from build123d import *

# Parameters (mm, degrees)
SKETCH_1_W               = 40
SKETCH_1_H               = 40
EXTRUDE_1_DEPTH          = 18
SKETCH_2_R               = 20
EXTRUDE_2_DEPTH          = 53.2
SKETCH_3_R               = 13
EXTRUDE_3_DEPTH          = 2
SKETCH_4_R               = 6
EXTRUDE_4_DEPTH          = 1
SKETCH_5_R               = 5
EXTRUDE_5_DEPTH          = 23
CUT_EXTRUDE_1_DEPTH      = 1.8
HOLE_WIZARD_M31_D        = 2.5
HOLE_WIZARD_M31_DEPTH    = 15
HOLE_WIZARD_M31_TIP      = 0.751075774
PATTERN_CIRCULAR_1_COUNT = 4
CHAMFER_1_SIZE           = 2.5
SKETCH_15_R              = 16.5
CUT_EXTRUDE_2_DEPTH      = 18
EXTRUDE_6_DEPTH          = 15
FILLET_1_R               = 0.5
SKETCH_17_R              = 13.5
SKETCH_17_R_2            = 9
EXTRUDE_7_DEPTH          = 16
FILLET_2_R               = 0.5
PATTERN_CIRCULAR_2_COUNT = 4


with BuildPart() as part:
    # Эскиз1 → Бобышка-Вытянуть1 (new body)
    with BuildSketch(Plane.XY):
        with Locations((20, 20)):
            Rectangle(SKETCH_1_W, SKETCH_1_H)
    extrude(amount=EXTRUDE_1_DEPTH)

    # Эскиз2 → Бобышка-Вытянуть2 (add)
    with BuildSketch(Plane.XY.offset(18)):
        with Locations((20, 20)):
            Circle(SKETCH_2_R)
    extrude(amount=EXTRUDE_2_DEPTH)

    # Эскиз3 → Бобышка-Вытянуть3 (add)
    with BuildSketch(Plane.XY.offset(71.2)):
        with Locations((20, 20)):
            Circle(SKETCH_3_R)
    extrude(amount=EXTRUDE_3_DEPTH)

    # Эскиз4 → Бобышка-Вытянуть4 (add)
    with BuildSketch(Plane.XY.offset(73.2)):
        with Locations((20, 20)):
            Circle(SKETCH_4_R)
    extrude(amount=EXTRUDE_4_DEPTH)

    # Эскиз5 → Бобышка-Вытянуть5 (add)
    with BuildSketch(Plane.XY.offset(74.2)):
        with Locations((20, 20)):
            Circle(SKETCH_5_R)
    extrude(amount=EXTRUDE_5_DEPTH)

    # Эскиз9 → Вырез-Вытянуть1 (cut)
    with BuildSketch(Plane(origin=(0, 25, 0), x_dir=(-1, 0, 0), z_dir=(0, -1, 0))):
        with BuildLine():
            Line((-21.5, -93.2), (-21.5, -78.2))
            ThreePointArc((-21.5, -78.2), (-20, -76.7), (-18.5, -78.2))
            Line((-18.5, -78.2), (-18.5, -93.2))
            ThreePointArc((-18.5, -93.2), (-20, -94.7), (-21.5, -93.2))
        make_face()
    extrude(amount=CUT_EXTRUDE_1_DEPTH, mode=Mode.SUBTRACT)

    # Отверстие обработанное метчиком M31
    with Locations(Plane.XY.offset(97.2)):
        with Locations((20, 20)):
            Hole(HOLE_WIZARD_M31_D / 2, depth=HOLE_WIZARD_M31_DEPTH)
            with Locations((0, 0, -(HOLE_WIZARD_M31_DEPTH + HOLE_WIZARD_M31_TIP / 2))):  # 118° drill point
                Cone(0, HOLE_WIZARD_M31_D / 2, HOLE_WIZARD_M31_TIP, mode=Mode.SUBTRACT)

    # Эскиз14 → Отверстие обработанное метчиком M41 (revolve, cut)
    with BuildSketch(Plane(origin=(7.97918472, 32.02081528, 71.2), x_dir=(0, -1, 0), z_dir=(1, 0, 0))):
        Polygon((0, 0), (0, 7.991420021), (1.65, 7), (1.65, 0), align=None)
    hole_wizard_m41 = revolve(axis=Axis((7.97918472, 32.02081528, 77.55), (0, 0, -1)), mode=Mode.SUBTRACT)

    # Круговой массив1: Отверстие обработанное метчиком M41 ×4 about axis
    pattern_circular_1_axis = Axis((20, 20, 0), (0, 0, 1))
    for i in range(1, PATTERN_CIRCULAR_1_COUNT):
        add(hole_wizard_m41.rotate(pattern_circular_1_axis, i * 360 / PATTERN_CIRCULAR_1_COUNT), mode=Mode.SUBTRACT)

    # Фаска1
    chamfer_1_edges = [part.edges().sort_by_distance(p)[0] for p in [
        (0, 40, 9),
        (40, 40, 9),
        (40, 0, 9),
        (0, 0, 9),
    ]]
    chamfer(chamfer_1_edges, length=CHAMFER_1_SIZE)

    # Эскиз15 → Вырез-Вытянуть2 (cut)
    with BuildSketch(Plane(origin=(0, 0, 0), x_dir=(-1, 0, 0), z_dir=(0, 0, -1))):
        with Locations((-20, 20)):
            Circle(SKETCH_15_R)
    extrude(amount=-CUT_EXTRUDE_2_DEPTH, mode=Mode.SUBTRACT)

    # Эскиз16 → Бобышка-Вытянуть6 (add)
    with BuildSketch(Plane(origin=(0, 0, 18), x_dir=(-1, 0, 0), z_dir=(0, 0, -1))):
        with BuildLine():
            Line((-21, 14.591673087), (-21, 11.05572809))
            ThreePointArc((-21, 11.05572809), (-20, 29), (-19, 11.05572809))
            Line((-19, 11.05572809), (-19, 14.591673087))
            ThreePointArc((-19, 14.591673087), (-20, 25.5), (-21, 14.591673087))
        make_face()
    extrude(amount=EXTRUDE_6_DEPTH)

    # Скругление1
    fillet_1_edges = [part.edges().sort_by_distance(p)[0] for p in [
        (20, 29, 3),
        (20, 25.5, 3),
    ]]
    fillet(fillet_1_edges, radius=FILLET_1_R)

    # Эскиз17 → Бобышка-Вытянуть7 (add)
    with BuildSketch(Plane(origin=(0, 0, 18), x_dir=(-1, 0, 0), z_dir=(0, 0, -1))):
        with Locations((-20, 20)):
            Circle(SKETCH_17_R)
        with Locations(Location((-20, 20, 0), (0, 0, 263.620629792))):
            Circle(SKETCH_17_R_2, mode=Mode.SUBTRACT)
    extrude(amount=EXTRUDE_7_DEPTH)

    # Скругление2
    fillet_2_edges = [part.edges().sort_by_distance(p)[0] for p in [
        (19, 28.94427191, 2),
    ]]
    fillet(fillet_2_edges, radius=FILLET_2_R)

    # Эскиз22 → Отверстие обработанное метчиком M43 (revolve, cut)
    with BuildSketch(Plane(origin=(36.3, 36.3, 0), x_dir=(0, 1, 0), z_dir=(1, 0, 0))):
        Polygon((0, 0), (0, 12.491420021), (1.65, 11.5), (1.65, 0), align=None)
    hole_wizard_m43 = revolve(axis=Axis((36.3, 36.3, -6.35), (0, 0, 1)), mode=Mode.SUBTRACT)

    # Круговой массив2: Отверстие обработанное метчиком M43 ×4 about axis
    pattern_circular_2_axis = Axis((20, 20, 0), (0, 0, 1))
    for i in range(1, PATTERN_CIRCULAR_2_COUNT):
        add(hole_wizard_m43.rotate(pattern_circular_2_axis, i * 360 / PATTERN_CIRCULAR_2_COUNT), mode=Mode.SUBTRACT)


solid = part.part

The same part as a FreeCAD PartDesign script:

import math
import FreeCAD as App
import Part
import Sketcher
from FreeCAD import Vector
Q = App.Units.Quantity


def edges_at(feature, points):
    """Names of the edges that pass closest to the given points."""
    edges = feature.Shape.Edges
    near = lambda p: min(range(len(edges)), key=lambda i: edges[i].distToShape(Part.Vertex(*p))[0])
    return sorted({f"Edge{near(p) + 1}" for p in points})


def add_polygon(sketch, points):
    """Adds a closed chain of lines whose ends are joined by coincident constraints."""
    first, n = sketch.GeometryCount, len(points)
    for a, b in zip(points, points[1:] + points[:1]):
        sketch.addGeometry(Part.LineSegment(App.Vector(*a, 0), App.Vector(*b, 0)), False)
    for i in range(n):
        sketch.addConstraint(Sketcher.Constraint("Coincident", first + i, 2, first + (i + 1) % n, 1))

doc = App.newDocument("Part")
body = doc.addObject("PartDesign::Body", "Body")

sketch1 = body.newObject("Sketcher::SketchObject", "Sketch")
sketch1.AttachmentSupport = (doc.getObject("XY_Plane"), [""])
sketch1.MapMode = "FlatFace"
add_polygon(sketch1, [(0, 40), (0, 0), (40, 0), (40, 40)])
sketch1.addConstraint(Sketcher.Constraint("Vertical", 0))
sketch1.addConstraint(Sketcher.Constraint("Horizontal", 1))
sketch1.addConstraint(Sketcher.Constraint("Vertical", 2))
sketch1.addConstraint(Sketcher.Constraint("Horizontal", 3))
sketch1.addConstraint(Sketcher.Constraint("Coincident", 0, 2, -1, 1))
sketch1.addConstraint(Sketcher.Constraint("Equal", 3, 0))
sketch1.addConstraint(Sketcher.Constraint("DistanceX", 1, 1, 1, 2, Q("40 mm")))
pad1 = body.newObject("PartDesign::Pad", "Pad")
pad1.Profile = sketch1
pad1.Length = 18

sketch2 = body.newObject("Sketcher::SketchObject", "Sketch001")
sketch2.AttachmentSupport = (doc.getObject("XY_Plane"), [""])
sketch2.MapMode = "FlatFace"
sketch2.AttachmentOffset = App.Placement(Vector(0, 0, 18), App.Rotation())
sketch2.addGeometry(Part.Circle(Vector(20, 20, 0), Vector(0, 0, 1), 20), False)
sketch2.addConstraint(Sketcher.Constraint("Diameter", 0, Q("40 mm")))
sketch2.addConstraint(Sketcher.Constraint("DistanceX", -1, 1, 0, 3, Q("20 mm")))
sketch2.addConstraint(Sketcher.Constraint("DistanceY", -1, 1, 0, 3, Q("20 mm")))
pad2 = body.newObject("PartDesign::Pad", "Pad001")
pad2.Profile = sketch2
pad2.Length = 53.2

sketch3 = body.newObject("Sketcher::SketchObject", "Sketch002")
sketch3.AttachmentSupport = (doc.getObject("XY_Plane"), [""])
sketch3.MapMode = "FlatFace"
sketch3.AttachmentOffset = App.Placement(Vector(0, 0, 71.2), App.Rotation())
sketch3.addGeometry(Part.Circle(Vector(20, 20, 0), Vector(0, 0, 1), 13), False)
sketch3.addConstraint(Sketcher.Constraint("Diameter", 0, Q("26 mm")))
sketch3.addConstraint(Sketcher.Constraint("DistanceX", -1, 1, 0, 3, Q("20 mm")))
sketch3.addConstraint(Sketcher.Constraint("DistanceY", -1, 1, 0, 3, Q("20 mm")))
pad3 = body.newObject("PartDesign::Pad", "Pad002")
pad3.Profile = sketch3
pad3.Length = 2

sketch4 = body.newObject("Sketcher::SketchObject", "Sketch003")
sketch4.AttachmentSupport = (doc.getObject("XY_Plane"), [""])
sketch4.MapMode = "FlatFace"
sketch4.AttachmentOffset = App.Placement(Vector(0, 0, 73.2), App.Rotation())
sketch4.addGeometry(Part.Circle(Vector(20, 20, 0), Vector(0, 0, 1), 6), False)
sketch4.addConstraint(Sketcher.Constraint("Diameter", 0, Q("12 mm")))
sketch4.addConstraint(Sketcher.Constraint("DistanceX", -1, 1, 0, 3, Q("20 mm")))
sketch4.addConstraint(Sketcher.Constraint("DistanceY", -1, 1, 0, 3, Q("20 mm")))
pad4 = body.newObject("PartDesign::Pad", "Pad003")
pad4.Profile = sketch4
pad4.Length = 1

sketch5 = body.newObject("Sketcher::SketchObject", "Sketch004")
sketch5.AttachmentSupport = (doc.getObject("XY_Plane"), [""])
sketch5.MapMode = "FlatFace"
sketch5.AttachmentOffset = App.Placement(Vector(0, 0, 74.2), App.Rotation())
sketch5.addGeometry(Part.Circle(Vector(20, 20, 0), Vector(0, 0, 1), 5), False)
sketch5.addConstraint(Sketcher.Constraint("Diameter", 0, Q("10 mm")))
sketch5.addConstraint(Sketcher.Constraint("DistanceX", -1, 1, 0, 3, Q("20 mm")))
sketch5.addConstraint(Sketcher.Constraint("DistanceY", -1, 1, 0, 3, Q("20 mm")))
pad5 = body.newObject("PartDesign::Pad", "Pad004")
pad5.Profile = sketch5
pad5.Length = 23

sketch6 = body.newObject("Sketcher::SketchObject", "Sketch005")
sketch6.AttachmentSupport = (doc.getObject("XZ_Plane"), [""])
sketch6.MapMode = "FlatFace"
sketch6.AttachmentOffset = App.Placement(Vector(0, 0, -25), App.Rotation())
sketch6.addGeometry(Part.LineSegment(Vector(21.5, 78.2, 0), Vector(21.5, 93.2, 0)), False)
sketch6.addGeometry(Part.ArcOfCircle(Part.Circle(Vector(20, 93.2, 0), Vector(0, 0, 1), 1.5), math.radians(0), math.radians(180)), False)
sketch6.addGeometry(Part.LineSegment(Vector(18.5, 93.2, 0), Vector(18.5, 78.2, 0)), False)
sketch6.addGeometry(Part.ArcOfCircle(Part.Circle(Vector(20, 78.2, 0), Vector(0, 0, 1), 1.5), math.radians(180), math.radians(360)), False)
sketch6.addConstraint(Sketcher.Constraint("Tangent", 0, 2, 1, 1))
sketch6.addConstraint(Sketcher.Constraint("Tangent", 1, 2, 2, 1))
sketch6.addConstraint(Sketcher.Constraint("Tangent", 2, 2, 3, 1))
sketch6.addConstraint(Sketcher.Constraint("Tangent", 3, 2, 0, 1))
sketch6.addConstraint(Sketcher.Constraint("Vertical", 0))
sketch6.addConstraint(Sketcher.Constraint("Vertical", 2))
sketch6.addConstraint(Sketcher.Constraint("Radius", 1, Q("1.5 mm")))
sketch6.addConstraint(Sketcher.Constraint("DistanceY", 0, 1, 0, 2, Q("15 mm")))
sketch6.addConstraint(Sketcher.Constraint("DistanceX", -1, 1, 1, 3, Q("20 mm")))
sketch6.addConstraint(Sketcher.Constraint("DistanceY", -1, 1, 1, 3, Q("93.2 mm")))
pocket1 = body.newObject("PartDesign::Pocket", "Pocket")
pocket1.Profile = sketch6
pocket1.Length = 1.8
pocket1.Reversed = True

sketch7 = body.newObject("Sketcher::SketchObject", "Sketch006")
sketch7.AttachmentSupport = (doc.getObject("XY_Plane"), [""])
sketch7.MapMode = "FlatFace"
sketch7.AttachmentOffset = App.Placement(Vector(0, 0, 97.2), App.Rotation())
sketch7.addGeometry(Part.Circle(Vector(20, 20, 0), Vector(0, 0, 1), 1.2), False)
sketch7.addConstraint(Sketcher.Constraint("Diameter", 0, Q("2.5 mm")))
sketch7.addConstraint(Sketcher.Constraint("DistanceX", -1, 1, 0, 3, Q("20 mm")))
sketch7.addConstraint(Sketcher.Constraint("DistanceY", -1, 1, 0, 3, Q("20 mm")))
doc.recompute()
hole = body.newObject("PartDesign::Hole", "Hole")
hole.Profile = sketch7
hole.ThreadType = "None"
hole.Diameter = 2.5
hole.DepthType = "Dimension"
hole.Depth = 15
hole.DrillPoint = "Angled"
hole.DrillPointAngle = 118

sketch8 = body.newObject("Sketcher::SketchObject", "Sketch007")
sketch8.AttachmentSupport = (doc.getObject("YZ_Plane"), [""])
sketch8.MapMode = "FlatFace"
sketch8.AttachmentOffset = App.Placement(Vector(0, 0, 7.979185), App.Rotation())
add_polygon(sketch8, [(32, 63.2), (32, 71.2), (30.4, 71.2), (30.4, 64.2)])
sketch8.addGeometry(Part.LineSegment(Vector(32, 71.2, 0), Vector(32, 63.2, 0)), True)
sketch8.addConstraint(Sketcher.Constraint("Vertical", 0))
sketch8.addConstraint(Sketcher.Constraint("Horizontal", 1))
sketch8.addConstraint(Sketcher.Constraint("Vertical", 2))
sketch8.addConstraint(Sketcher.Constraint("Vertical", 4))
sketch8.addConstraint(Sketcher.Constraint("Coincident", 4, 1, 0, 2))
sketch8.addConstraint(Sketcher.Constraint("Equal", 0, 4))
sketch8.addConstraint(Sketcher.Constraint("DistanceY", 2, 2, 2, 1, Q("7 mm")))
sketch8.addConstraint(Sketcher.Constraint("Angle", 3, Q("-31 deg")))
sketch8.addConstraint(Sketcher.Constraint("DistanceX", 1, 2, 1, 1, Q("1.65 mm")))
sketch8.addConstraint(Sketcher.Constraint("DistanceY", -1, 1, 0, 2, Q("71.2 mm")))
sketch8.addConstraint(Sketcher.Constraint("DistanceX", -1, 1, 0, 2, Q("32.020815 mm")))
groove = body.newObject("PartDesign::Groove", "Groove")
groove.Profile = sketch8
groove.ReferenceAxis = (sketch8, ["Axis0"])
groove.Angle = 360
doc.recompute()

datumline = body.newObject("PartDesign::Line", "DatumLine")
datumline.Placement = App.Placement(Vector(20, 20, 0), App.Rotation(Vector(0, 0, 1), Vector(0, 0, 1)))
polarpattern = body.newObject("PartDesign::PolarPattern", "PolarPattern")
polarpattern.Originals = [groove]
polarpattern.Axis = (datumline, [""])
polarpattern.Angle = 360
polarpattern.Occurrences = 4
body.Tip = polarpattern
doc.recompute()

chamfer = body.newObject("PartDesign::Chamfer", "Chamfer")
chamfer.Base = (polarpattern, edges_at(polarpattern, [
    (0, 40, 9),
    (40, 40, 9),
    (40, 0, 9),
    (0, 0, 9),
]))
chamfer.Size = 2.5

sketch9 = body.newObject("Sketcher::SketchObject", "Sketch008")
sketch9.AttachmentSupport = (doc.getObject("XY_Plane"), [""])
sketch9.MapMode = "FlatFace"
sketch9.addGeometry(Part.Circle(Vector(20, 20, 0), Vector(0, 0, 1), 16), False)
sketch9.addConstraint(Sketcher.Constraint("Diameter", 0, Q("33 mm")))
sketch9.addConstraint(Sketcher.Constraint("DistanceX", -1, 1, 0, 3, Q("20 mm")))
sketch9.addConstraint(Sketcher.Constraint("DistanceY", -1, 1, 0, 3, Q("20 mm")))
pocket2 = body.newObject("PartDesign::Pocket", "Pocket001")
pocket2.Profile = sketch9
pocket2.Length = 18
pocket2.Reversed = True

sketch10 = body.newObject("Sketcher::SketchObject", "Sketch009")
sketch10.AttachmentSupport = (doc.getObject("XY_Plane"), [""])
sketch10.MapMode = "FlatFace"
sketch10.AttachmentOffset = App.Placement(Vector(0, 0, 18), App.Rotation())
sketch10.addGeometry(Part.LineSegment(Vector(21, 11.1, 0), Vector(21, 14.6, 0)), False)
sketch10.addGeometry(Part.ArcOfCircle(Part.Circle(Vector(20, 20, 0), Vector(0, 0, 1), 5.5), math.radians(-80), math.radians(260)), False)
sketch10.addGeometry(Part.LineSegment(Vector(19, 14.6, 0), Vector(19, 11.1, 0)), False)
sketch10.addGeometry(Part.ArcOfCircle(Part.Circle(Vector(20, 20, 0), Vector(0, 0, 1), 9), math.radians(-84), math.radians(264)), False)
sketch10.addConstraint(Sketcher.Constraint("Coincident", 0, 2, 1, 1))
sketch10.addConstraint(Sketcher.Constraint("Coincident", 1, 2, 2, 1))
sketch10.addConstraint(Sketcher.Constraint("Coincident", 2, 2, 3, 2))
sketch10.addConstraint(Sketcher.Constraint("Coincident", 3, 1, 0, 1))
sketch10.addConstraint(Sketcher.Constraint("Vertical", 0))
sketch10.addConstraint(Sketcher.Constraint("Vertical", 2))
sketch10.addConstraint(Sketcher.Constraint("Coincident", 3, 3, 1, 3))
sketch10.addConstraint(Sketcher.Constraint("Horizontal", 0, 2, 1, 2))
sketch10.addConstraint(Sketcher.Constraint("Radius", 3, Q("9 mm")))
sketch10.addConstraint(Sketcher.Constraint("Radius", 1, Q("5.5 mm")))
sketch10.addConstraint(Sketcher.Constraint("DistanceX", -1, 1, 1, 3, Q("20 mm")))
sketch10.addConstraint(Sketcher.Constraint("DistanceY", -1, 1, 1, 3, Q("20 mm")))
sketch10.addConstraint(Sketcher.Constraint("DistanceX", -1, 1, 0, 2, Q("21 mm")))
pad6 = body.newObject("PartDesign::Pad", "Pad005")
pad6.Profile = sketch10
pad6.Length = 15
pad6.Reversed = True
doc.recompute()

fillet = body.newObject("PartDesign::Fillet", "Fillet")
fillet.Base = (pad6, edges_at(pad6, [(20, 29, 3), (20, 25.5, 3)]))
fillet.Radius = 0.5

sketch11 = body.newObject("Sketcher::SketchObject", "Sketch010")
sketch11.AttachmentSupport = (doc.getObject("XY_Plane"), [""])
sketch11.MapMode = "FlatFace"
sketch11.AttachmentOffset = App.Placement(Vector(0, 0, 18), App.Rotation())
sketch11.addGeometry(Part.Circle(Vector(20, 20, 0), Vector(0, 0, 1), 14), False)
sketch11.addGeometry(Part.Circle(Vector(20, 20, 0), Vector(0, 0, 1), 9), False)
sketch11.addConstraint(Sketcher.Constraint("Coincident", 1, 3, 0, 3))
sketch11.addConstraint(Sketcher.Constraint("Diameter", 0, Q("27 mm")))
sketch11.addConstraint(Sketcher.Constraint("Diameter", 1, Q("18 mm")))
sketch11.addConstraint(Sketcher.Constraint("DistanceX", -1, 1, 0, 3, Q("20 mm")))
sketch11.addConstraint(Sketcher.Constraint("DistanceY", -1, 1, 0, 3, Q("20 mm")))
pad7 = body.newObject("PartDesign::Pad", "Pad006")
pad7.Profile = sketch11
pad7.Length = 16
pad7.Reversed = True
doc.recompute()

fillet2 = body.newObject("PartDesign::Fillet", "Fillet001")
fillet2.Base = (pad7, edges_at(pad7, [(19, 28.944, 2)]))
fillet2.Radius = 0.5

sketch12 = body.newObject("Sketcher::SketchObject", "Sketch011")
sketch12.AttachmentSupport = (doc.getObject("YZ_Plane"), [""])
sketch12.MapMode = "FlatFace"
sketch12.AttachmentOffset = App.Placement(Vector(0, 0, 36.3), App.Rotation())
add_polygon(sketch12, [(36.3, 12.5), (36.3, 0), (38, 0), (38, 11.5)])
sketch12.addGeometry(Part.LineSegment(Vector(36.3, 0, 0), Vector(36.3, 12.5, 0)), True)
sketch12.addConstraint(Sketcher.Constraint("Vertical", 0))
sketch12.addConstraint(Sketcher.Constraint("Horizontal", 1))
sketch12.addConstraint(Sketcher.Constraint("Vertical", 2))
sketch12.addConstraint(Sketcher.Constraint("Vertical", 4))
sketch12.addConstraint(Sketcher.Constraint("Coincident", 4, 1, 0, 2))
sketch12.addConstraint(Sketcher.Constraint("PointOnObject", 0, 2, -1))
sketch12.addConstraint(Sketcher.Constraint("Equal", 0, 4))
sketch12.addConstraint(Sketcher.Constraint("Angle", 3, Q("149 deg")))
sketch12.addConstraint(Sketcher.Constraint("DistanceY", 2, 1, 2, 2, Q("11.5 mm")))
sketch12.addConstraint(Sketcher.Constraint("DistanceX", 1, 1, 1, 2, Q("1.65 mm")))
sketch12.addConstraint(Sketcher.Constraint("DistanceX", -1, 1, 0, 2, Q("36.3 mm")))
groove2 = body.newObject("PartDesign::Groove", "Groove001")
groove2.Profile = sketch12
groove2.ReferenceAxis = (sketch12, ["Axis0"])
groove2.Angle = 360
doc.recompute()

datumline2 = body.newObject("PartDesign::Line", "DatumLine001")
datumline2.Placement = App.Placement(Vector(20, 20, 0), App.Rotation(Vector(0, 0, 1), Vector(0, 0, 1)))
polarpattern2 = body.newObject("PartDesign::PolarPattern", "PolarPattern001")
polarpattern2.Originals = [groove2]
polarpattern2.Axis = (datumline2, [""])
polarpattern2.Angle = 360
polarpattern2.Occurrences = 4
body.Tip = polarpattern2

doc.recompute()
